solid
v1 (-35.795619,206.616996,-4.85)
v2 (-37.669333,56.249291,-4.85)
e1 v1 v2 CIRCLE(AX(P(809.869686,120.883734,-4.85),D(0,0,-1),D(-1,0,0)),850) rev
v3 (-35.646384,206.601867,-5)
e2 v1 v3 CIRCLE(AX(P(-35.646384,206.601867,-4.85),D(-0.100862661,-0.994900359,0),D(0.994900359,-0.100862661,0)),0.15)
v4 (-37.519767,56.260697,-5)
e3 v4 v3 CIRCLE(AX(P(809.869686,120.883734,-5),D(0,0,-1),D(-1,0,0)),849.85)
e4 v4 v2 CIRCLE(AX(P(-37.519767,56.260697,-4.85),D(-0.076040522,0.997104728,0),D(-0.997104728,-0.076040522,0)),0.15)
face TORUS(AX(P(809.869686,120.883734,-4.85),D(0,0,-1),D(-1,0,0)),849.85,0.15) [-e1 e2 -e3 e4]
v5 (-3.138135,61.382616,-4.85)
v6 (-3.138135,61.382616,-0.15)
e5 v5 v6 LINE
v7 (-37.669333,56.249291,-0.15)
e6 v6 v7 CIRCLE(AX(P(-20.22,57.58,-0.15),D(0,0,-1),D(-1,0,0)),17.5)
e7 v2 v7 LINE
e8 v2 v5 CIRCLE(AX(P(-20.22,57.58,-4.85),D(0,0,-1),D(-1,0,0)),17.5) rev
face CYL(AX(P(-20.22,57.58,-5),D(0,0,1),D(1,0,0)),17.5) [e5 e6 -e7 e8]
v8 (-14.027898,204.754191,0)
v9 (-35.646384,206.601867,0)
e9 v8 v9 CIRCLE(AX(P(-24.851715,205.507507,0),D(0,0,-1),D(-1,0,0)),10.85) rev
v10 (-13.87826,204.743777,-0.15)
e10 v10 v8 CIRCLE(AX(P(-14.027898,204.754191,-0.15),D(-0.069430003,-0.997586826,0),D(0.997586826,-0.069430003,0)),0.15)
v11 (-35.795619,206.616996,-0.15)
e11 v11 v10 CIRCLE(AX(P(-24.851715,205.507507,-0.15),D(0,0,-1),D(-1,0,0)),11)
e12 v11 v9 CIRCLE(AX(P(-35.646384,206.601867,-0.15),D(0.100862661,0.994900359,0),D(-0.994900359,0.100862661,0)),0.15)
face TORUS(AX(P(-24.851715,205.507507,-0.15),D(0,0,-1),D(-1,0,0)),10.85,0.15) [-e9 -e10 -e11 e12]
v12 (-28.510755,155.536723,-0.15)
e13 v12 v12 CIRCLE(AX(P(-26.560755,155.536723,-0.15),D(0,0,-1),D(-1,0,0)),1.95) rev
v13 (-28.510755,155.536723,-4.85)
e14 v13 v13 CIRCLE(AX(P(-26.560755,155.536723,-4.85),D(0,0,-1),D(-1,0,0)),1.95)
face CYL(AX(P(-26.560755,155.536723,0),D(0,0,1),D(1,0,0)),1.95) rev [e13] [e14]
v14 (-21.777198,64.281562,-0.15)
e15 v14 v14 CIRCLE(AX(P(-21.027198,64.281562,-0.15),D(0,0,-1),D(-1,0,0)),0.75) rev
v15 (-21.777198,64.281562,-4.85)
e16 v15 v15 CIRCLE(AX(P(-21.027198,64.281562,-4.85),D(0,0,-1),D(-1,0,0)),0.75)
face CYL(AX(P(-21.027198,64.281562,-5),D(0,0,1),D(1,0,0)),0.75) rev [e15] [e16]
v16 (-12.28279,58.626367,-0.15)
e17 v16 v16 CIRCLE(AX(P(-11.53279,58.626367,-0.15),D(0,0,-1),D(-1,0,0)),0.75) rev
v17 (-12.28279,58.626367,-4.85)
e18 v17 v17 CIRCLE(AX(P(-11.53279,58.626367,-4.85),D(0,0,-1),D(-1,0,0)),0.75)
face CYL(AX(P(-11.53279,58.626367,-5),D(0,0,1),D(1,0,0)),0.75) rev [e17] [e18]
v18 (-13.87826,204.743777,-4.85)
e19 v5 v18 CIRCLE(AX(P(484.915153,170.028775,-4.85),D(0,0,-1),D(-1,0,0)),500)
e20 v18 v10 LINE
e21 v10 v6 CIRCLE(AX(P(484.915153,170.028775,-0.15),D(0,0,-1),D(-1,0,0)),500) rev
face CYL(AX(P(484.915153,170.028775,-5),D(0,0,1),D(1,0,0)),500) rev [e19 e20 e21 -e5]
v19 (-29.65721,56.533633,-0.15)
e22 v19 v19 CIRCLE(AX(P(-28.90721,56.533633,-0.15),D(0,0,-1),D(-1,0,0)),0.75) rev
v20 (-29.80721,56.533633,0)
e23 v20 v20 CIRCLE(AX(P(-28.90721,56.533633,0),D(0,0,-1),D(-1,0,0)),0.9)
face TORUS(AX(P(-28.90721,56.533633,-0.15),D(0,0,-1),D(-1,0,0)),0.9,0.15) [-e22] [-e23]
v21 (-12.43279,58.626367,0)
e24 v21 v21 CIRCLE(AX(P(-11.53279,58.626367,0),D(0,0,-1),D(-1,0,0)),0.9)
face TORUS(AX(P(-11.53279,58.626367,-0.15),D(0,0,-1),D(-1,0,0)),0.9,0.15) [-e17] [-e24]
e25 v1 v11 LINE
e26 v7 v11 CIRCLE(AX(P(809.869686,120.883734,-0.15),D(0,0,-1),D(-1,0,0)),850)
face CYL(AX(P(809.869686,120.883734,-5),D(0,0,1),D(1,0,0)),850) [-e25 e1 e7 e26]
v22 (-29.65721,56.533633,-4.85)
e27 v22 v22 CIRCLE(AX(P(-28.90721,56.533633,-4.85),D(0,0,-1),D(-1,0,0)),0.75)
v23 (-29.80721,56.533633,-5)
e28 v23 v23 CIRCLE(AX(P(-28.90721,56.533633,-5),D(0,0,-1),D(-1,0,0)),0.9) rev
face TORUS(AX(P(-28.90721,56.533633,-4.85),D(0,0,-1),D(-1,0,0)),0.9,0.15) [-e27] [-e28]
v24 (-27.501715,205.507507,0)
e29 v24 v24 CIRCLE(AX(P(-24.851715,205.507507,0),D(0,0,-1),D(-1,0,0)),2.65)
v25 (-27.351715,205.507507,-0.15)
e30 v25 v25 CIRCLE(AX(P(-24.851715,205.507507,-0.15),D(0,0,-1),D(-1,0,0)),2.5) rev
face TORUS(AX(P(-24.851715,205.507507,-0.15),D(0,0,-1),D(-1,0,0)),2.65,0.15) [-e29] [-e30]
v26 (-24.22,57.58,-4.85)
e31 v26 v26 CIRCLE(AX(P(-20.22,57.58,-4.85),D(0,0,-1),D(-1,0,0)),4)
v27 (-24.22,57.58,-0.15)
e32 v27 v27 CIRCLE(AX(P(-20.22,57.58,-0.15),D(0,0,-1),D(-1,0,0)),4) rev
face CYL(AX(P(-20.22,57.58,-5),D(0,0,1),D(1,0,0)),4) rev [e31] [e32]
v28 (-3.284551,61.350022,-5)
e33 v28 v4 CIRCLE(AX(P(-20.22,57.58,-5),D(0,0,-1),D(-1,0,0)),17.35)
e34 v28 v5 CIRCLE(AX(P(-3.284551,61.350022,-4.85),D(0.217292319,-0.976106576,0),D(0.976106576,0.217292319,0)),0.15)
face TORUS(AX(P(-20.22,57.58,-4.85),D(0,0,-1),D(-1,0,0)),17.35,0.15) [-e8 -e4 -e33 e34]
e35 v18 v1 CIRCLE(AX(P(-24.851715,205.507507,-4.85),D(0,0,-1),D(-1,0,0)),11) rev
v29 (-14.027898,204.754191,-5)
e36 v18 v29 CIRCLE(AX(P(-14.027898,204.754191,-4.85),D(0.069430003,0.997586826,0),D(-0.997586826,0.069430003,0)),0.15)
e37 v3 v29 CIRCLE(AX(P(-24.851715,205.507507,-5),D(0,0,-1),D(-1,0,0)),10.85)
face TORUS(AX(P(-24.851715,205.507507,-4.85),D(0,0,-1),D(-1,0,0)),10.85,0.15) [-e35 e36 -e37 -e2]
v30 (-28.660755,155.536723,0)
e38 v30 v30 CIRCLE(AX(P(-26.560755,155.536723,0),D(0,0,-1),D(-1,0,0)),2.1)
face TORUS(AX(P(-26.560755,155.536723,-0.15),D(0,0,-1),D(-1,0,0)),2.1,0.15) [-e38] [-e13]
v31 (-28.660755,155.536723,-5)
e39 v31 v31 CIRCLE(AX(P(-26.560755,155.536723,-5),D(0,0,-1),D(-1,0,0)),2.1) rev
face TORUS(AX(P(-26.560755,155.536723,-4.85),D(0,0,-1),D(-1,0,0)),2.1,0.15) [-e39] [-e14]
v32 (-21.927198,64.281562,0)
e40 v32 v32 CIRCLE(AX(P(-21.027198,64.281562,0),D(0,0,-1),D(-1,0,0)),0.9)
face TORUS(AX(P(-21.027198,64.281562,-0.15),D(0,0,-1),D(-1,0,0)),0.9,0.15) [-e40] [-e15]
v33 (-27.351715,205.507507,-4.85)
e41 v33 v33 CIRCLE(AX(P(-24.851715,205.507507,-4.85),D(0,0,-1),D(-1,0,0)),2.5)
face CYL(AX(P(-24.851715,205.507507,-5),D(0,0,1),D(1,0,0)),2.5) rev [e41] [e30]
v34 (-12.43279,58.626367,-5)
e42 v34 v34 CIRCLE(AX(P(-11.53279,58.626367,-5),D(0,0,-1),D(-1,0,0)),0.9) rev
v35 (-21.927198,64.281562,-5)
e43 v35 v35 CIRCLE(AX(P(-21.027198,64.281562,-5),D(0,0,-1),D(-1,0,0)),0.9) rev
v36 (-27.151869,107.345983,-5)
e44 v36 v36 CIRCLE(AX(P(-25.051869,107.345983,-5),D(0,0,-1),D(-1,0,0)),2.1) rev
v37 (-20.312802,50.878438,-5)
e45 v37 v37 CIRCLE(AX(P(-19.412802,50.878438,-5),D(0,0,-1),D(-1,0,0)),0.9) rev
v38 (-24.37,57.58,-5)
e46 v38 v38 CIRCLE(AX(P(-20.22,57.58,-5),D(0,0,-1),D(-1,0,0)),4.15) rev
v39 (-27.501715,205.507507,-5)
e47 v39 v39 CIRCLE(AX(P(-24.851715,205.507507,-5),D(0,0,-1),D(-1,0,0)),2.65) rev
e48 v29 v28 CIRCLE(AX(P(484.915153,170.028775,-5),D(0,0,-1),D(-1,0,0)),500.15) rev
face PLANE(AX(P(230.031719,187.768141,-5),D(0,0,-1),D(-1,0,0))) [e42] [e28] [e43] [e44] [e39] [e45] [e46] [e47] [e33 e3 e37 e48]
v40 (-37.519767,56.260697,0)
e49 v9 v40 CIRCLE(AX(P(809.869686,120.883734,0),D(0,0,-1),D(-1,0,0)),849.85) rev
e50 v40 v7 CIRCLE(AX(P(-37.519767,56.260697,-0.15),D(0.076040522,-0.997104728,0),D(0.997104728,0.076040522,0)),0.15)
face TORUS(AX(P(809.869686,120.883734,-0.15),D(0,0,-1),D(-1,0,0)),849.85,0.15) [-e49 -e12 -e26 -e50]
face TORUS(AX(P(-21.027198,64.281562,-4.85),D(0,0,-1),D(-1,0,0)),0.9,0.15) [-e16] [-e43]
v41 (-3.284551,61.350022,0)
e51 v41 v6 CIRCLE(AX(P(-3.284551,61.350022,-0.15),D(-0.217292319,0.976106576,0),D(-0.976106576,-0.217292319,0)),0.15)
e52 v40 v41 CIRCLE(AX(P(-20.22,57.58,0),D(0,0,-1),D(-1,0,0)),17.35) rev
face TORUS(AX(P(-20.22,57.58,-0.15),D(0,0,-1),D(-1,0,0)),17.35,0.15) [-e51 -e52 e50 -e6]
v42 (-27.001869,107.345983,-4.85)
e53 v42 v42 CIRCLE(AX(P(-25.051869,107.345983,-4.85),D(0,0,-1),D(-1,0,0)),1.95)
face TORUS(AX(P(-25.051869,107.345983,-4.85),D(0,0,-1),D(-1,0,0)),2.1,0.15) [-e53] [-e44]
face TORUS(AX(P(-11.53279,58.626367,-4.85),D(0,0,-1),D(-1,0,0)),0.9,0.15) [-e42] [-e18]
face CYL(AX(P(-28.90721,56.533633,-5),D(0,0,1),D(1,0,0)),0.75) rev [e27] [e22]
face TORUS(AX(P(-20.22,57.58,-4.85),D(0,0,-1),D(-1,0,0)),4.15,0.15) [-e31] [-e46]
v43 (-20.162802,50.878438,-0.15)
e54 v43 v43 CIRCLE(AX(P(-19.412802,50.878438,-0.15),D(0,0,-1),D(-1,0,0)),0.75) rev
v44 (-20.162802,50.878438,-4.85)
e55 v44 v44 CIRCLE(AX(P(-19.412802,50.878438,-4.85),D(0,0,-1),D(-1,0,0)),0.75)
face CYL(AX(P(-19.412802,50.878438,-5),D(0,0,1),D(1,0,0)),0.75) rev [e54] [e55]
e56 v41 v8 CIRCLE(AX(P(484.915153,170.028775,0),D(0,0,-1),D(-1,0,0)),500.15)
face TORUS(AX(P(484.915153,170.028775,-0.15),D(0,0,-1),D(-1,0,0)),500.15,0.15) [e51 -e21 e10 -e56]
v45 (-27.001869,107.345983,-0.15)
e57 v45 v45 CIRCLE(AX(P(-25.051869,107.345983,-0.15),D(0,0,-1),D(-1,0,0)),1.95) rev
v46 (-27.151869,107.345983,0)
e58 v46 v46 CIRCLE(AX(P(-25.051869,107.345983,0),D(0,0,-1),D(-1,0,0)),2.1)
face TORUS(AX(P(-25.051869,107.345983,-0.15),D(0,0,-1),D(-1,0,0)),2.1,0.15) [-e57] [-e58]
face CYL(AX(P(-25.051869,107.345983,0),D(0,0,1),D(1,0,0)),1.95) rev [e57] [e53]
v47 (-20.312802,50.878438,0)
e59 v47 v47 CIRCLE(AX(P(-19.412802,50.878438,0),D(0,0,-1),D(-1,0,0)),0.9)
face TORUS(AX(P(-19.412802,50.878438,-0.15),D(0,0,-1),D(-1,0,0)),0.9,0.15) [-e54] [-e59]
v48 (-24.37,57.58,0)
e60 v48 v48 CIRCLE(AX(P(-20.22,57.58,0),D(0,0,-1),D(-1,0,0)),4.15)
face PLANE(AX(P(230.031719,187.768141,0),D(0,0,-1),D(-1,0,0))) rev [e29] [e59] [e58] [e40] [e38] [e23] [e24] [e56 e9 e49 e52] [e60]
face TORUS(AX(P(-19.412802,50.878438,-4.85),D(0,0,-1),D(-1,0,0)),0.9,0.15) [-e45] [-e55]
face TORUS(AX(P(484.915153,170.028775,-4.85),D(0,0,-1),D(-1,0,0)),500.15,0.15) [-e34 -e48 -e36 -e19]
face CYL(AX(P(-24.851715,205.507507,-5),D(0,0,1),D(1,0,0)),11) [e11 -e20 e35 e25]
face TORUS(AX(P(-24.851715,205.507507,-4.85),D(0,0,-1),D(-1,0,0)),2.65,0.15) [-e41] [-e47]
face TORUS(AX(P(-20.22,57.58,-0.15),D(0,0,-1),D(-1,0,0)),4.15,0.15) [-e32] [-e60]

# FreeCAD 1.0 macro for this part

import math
import FreeCAD as App
import Part
import Sketcher

V = App.Vector
Q = App.Units.Quantity


def edges_at(feature, points):
    """Names of the edges that pass closest to the given points."""
    edges = feature.Shape.Edges
    near = lambda p: min(range(len(edges)), key=lambda i: edges[i].distToShape(Part.Vertex(*p))[0])
    return sorted({f"Edge{near(p) + 1}" for p in points})

doc = App.newDocument("Part")
body = doc.addObject("PartDesign::Body", "Body")

sketch1 = body.newObject("Sketcher::SketchObject", "Sketch")
sketch1.AttachmentSupport = (doc.getObject("XY_Plane"), [""])
sketch1.MapMode = "FlatFace"
sketch1.addGeometry(Part.ArcOfCircle(Part.Circle(V(484.9, 170, 0), V(0, 0, 1), 500), math.radians(176.02), math.radians(192.55)), False)
sketch1.addGeometry(Part.ArcOfCircle(Part.Circle(V(-24.9, 205.5, 0), V(0, 0, 1), 11), math.radians(-4), math.radians(174)), False)
sketch1.addGeometry(Part.ArcOfCircle(Part.Circle(V(809.9, 120.9, 0), V(0, 0, 1), 850), math.radians(174.21), math.radians(184.36)), False)
sketch1.addGeometry(Part.ArcOfCircle(Part.Circle(V(-20.2, 57.6, 0), V(0, 0, 1), 17.5), math.radians(-176), math.radians(13)), False)
sketch1.addGeometry(Part.Circle(V(-11.5, 58.6, 0), V(0, 0, 1), 0.8), False)
sketch1.addGeometry(Part.Circle(V(-19.4, 50.9, 0), V(0, 0, 1), 0.8), False)
sketch1.addGeometry(Part.Circle(V(-20.2, 57.6, 0), V(0, 0, 1), 4), False)
sketch1.addGeometry(Part.Circle(V(-21, 64.3, 0), V(0, 0, 1), 0.8), False)
sketch1.addGeometry(Part.Circle(V(-28.9, 56.5, 0), V(0, 0, 1), 0.8), False)
sketch1.addGeometry(Part.Circle(V(-24.9, 205.5, 0), V(0, 0, 1), 2.5), False)
sketch1.addConstraint(Sketcher.Constraint("Tangent", 0, 1, 1, 1))
sketch1.addConstraint(Sketcher.Constraint("Tangent", 1, 2, 2, 1))
sketch1.addConstraint(Sketcher.Constraint("Tangent", 2, 2, 3, 1))
sketch1.addConstraint(Sketcher.Constraint("Tangent", 3, 2, 0, 2))
sketch1.addConstraint(Sketcher.Constraint("Coincident", 6, 3, 3, 3))
sketch1.addConstraint(Sketcher.Constraint("Coincident", 9, 3, 1, 3))
sketch1.addConstraint(Sketcher.Constraint("Equal", 4, 5))
sketch1.addConstraint(Sketcher.Constraint("Equal", 5, 7))
sketch1.addConstraint(Sketcher.Constraint("Equal", 7, 8))
sketch1.addConstraint(Sketcher.Constraint("Diameter", 6, Q("8 mm")))
sketch1.addConstraint(Sketcher.Constraint("Diameter", 9, Q("5 mm")))
sketch1.addConstraint(Sketcher.Constraint("Radius", 0, Q("500 mm")))
sketch1.addConstraint(Sketcher.Constraint("Radius", 1, Q("11 mm")))
sketch1.addConstraint(Sketcher.Constraint("Radius", 2, Q("850 mm")))
sketch1.addConstraint(Sketcher.Constraint("Diameter", 4, Q("1.5 mm")))
sketch1.addConstraint(Sketcher.Constraint("Radius", 3, Q("17.5 mm")))
sketch1.addConstraint(Sketcher.Constraint("DistanceX", 3, 3, -1, 1, Q("20.22 mm")))
sketch1.addConstraint(Sketcher.Constraint("DistanceY", -1, 1, 3, 3, Q("57.58 mm")))
sketch1.addConstraint(Sketcher.Constraint("DistanceX", 1, 3, 2, 3, Q("834.721401 mm")))
sketch1.addConstraint(Sketcher.Constraint("DistanceX", 4, 3, -1, 1, Q("11.53279 mm")))
sketch1.addConstraint(Sketcher.Constraint("DistanceY", -1, 1, 5, 3, Q("50.878438 mm")))
sketch1.addConstraint(Sketcher.Constraint("DistanceY", -1, 1, 7, 3, Q("64.281562 mm")))
sketch1.addConstraint(Sketcher.Constraint("DistanceX", 8, 3, -1, 1, Q("28.90721 mm")))
sketch1.addConstraint(Sketcher.Constraint("DistanceX", 1, 2, -1, 1, Q("35.795619 mm")))
sketch1.addConstraint(Sketcher.Constraint("DistanceY", 4, 3, 1, 3, Q("146.881139 mm")))
sketch1.addConstraint(Sketcher.Constraint("DistanceX", 5, 3, 2, 3, Q("829.282489 mm")))
sketch1.addConstraint(Sketcher.Constraint("DistanceY", 8, 3, 7, 3, Q("7.747929 mm")))
sketch1.addConstraint(Sketcher.Constraint("DistanceX", 7, 3, 0, 1, Q("7.148938 mm")))
pad1 = body.newObject("PartDesign::Pad", "Pad")
pad1.Profile = sketch1
pad1.Length = 5
pad1.Reversed = True

sketch2 = body.newObject("Sketcher::SketchObject", "Sketch001")
sketch2.AttachmentSupport = (doc.getObject("XY_Plane"), [""])
sketch2.MapMode = "FlatFace"
sketch2.addGeometry(Part.Circle(V(-25.1, 107.3, 0), V(0, 0, 1), 1.9), False)
sketch2.addGeometry(Part.Circle(V(-26.6, 155.5, 0), V(0, 0, 1), 1.9), False)
sketch2.addConstraint(Sketcher.Constraint("Equal", 0, 1))
sketch2.addConstraint(Sketcher.Constraint("Diameter", 0, Q("3.9 mm")))
sketch2.addConstraint(Sketcher.Constraint("DistanceX", 0, 3, -1, 1, Q("25.051869 mm")))
sketch2.addConstraint(Sketcher.Constraint("DistanceY", 0, 3, 1, 3, Q("48.190741 mm")))
sketch2.addConstraint(Sketcher.Constraint("DistanceY", -1, 1, 0, 3, Q("107.345983 mm")))
sketch2.addConstraint(Sketcher.Constraint("DistanceX", 1, 3, -1, 1, Q("26.560755 mm")))
doc.recompute()
hole = body.newObject("PartDesign::Hole", "Hole")
hole.Profile = sketch2
hole.ThreadType = "None"
hole.Diameter = 3.9
hole.DepthType = "ThroughAll"
doc.recompute()

fillet = body.newObject("PartDesign::Fillet", "Fillet")
fillet.Base = (hole, edges_at(hole, [
    (-27.352, 205.508, -5),
    (-27.352, 205.508, 0),
    (-17.647, 40.27, -5),
    (-24.22, 57.58, -5),
    (-24.22, 57.58, 0),
    (-13.688, 132.675, -5),
    (-21.777, 64.282, -5),
    (-21.777, 64.282, 0),
    (-29.657, 56.534, -5),
    (-29.657, 56.534, 0),
    (-12.283, 58.626, -5),
    (-12.283, 58.626, 0),
    (-20.163, 50.878, -5),
    (-20.163, 50.878, 0),
    (-24.611, 155.537, 0),
    (-24.611, 155.537, -5),
    (-23.102, 107.346, 0),
    (-23.102, 107.346, -5),
    (-23.915, 216.468, -5),
    (-13.688, 132.675, 0),
    (-17.647, 40.27, 0),
    (-40.064, 131.475, 0),
    (-23.915, 216.468, 0),
    (-40.064, 131.475, -5),
]))
fillet.Radius = 0.15

doc.recompute()
